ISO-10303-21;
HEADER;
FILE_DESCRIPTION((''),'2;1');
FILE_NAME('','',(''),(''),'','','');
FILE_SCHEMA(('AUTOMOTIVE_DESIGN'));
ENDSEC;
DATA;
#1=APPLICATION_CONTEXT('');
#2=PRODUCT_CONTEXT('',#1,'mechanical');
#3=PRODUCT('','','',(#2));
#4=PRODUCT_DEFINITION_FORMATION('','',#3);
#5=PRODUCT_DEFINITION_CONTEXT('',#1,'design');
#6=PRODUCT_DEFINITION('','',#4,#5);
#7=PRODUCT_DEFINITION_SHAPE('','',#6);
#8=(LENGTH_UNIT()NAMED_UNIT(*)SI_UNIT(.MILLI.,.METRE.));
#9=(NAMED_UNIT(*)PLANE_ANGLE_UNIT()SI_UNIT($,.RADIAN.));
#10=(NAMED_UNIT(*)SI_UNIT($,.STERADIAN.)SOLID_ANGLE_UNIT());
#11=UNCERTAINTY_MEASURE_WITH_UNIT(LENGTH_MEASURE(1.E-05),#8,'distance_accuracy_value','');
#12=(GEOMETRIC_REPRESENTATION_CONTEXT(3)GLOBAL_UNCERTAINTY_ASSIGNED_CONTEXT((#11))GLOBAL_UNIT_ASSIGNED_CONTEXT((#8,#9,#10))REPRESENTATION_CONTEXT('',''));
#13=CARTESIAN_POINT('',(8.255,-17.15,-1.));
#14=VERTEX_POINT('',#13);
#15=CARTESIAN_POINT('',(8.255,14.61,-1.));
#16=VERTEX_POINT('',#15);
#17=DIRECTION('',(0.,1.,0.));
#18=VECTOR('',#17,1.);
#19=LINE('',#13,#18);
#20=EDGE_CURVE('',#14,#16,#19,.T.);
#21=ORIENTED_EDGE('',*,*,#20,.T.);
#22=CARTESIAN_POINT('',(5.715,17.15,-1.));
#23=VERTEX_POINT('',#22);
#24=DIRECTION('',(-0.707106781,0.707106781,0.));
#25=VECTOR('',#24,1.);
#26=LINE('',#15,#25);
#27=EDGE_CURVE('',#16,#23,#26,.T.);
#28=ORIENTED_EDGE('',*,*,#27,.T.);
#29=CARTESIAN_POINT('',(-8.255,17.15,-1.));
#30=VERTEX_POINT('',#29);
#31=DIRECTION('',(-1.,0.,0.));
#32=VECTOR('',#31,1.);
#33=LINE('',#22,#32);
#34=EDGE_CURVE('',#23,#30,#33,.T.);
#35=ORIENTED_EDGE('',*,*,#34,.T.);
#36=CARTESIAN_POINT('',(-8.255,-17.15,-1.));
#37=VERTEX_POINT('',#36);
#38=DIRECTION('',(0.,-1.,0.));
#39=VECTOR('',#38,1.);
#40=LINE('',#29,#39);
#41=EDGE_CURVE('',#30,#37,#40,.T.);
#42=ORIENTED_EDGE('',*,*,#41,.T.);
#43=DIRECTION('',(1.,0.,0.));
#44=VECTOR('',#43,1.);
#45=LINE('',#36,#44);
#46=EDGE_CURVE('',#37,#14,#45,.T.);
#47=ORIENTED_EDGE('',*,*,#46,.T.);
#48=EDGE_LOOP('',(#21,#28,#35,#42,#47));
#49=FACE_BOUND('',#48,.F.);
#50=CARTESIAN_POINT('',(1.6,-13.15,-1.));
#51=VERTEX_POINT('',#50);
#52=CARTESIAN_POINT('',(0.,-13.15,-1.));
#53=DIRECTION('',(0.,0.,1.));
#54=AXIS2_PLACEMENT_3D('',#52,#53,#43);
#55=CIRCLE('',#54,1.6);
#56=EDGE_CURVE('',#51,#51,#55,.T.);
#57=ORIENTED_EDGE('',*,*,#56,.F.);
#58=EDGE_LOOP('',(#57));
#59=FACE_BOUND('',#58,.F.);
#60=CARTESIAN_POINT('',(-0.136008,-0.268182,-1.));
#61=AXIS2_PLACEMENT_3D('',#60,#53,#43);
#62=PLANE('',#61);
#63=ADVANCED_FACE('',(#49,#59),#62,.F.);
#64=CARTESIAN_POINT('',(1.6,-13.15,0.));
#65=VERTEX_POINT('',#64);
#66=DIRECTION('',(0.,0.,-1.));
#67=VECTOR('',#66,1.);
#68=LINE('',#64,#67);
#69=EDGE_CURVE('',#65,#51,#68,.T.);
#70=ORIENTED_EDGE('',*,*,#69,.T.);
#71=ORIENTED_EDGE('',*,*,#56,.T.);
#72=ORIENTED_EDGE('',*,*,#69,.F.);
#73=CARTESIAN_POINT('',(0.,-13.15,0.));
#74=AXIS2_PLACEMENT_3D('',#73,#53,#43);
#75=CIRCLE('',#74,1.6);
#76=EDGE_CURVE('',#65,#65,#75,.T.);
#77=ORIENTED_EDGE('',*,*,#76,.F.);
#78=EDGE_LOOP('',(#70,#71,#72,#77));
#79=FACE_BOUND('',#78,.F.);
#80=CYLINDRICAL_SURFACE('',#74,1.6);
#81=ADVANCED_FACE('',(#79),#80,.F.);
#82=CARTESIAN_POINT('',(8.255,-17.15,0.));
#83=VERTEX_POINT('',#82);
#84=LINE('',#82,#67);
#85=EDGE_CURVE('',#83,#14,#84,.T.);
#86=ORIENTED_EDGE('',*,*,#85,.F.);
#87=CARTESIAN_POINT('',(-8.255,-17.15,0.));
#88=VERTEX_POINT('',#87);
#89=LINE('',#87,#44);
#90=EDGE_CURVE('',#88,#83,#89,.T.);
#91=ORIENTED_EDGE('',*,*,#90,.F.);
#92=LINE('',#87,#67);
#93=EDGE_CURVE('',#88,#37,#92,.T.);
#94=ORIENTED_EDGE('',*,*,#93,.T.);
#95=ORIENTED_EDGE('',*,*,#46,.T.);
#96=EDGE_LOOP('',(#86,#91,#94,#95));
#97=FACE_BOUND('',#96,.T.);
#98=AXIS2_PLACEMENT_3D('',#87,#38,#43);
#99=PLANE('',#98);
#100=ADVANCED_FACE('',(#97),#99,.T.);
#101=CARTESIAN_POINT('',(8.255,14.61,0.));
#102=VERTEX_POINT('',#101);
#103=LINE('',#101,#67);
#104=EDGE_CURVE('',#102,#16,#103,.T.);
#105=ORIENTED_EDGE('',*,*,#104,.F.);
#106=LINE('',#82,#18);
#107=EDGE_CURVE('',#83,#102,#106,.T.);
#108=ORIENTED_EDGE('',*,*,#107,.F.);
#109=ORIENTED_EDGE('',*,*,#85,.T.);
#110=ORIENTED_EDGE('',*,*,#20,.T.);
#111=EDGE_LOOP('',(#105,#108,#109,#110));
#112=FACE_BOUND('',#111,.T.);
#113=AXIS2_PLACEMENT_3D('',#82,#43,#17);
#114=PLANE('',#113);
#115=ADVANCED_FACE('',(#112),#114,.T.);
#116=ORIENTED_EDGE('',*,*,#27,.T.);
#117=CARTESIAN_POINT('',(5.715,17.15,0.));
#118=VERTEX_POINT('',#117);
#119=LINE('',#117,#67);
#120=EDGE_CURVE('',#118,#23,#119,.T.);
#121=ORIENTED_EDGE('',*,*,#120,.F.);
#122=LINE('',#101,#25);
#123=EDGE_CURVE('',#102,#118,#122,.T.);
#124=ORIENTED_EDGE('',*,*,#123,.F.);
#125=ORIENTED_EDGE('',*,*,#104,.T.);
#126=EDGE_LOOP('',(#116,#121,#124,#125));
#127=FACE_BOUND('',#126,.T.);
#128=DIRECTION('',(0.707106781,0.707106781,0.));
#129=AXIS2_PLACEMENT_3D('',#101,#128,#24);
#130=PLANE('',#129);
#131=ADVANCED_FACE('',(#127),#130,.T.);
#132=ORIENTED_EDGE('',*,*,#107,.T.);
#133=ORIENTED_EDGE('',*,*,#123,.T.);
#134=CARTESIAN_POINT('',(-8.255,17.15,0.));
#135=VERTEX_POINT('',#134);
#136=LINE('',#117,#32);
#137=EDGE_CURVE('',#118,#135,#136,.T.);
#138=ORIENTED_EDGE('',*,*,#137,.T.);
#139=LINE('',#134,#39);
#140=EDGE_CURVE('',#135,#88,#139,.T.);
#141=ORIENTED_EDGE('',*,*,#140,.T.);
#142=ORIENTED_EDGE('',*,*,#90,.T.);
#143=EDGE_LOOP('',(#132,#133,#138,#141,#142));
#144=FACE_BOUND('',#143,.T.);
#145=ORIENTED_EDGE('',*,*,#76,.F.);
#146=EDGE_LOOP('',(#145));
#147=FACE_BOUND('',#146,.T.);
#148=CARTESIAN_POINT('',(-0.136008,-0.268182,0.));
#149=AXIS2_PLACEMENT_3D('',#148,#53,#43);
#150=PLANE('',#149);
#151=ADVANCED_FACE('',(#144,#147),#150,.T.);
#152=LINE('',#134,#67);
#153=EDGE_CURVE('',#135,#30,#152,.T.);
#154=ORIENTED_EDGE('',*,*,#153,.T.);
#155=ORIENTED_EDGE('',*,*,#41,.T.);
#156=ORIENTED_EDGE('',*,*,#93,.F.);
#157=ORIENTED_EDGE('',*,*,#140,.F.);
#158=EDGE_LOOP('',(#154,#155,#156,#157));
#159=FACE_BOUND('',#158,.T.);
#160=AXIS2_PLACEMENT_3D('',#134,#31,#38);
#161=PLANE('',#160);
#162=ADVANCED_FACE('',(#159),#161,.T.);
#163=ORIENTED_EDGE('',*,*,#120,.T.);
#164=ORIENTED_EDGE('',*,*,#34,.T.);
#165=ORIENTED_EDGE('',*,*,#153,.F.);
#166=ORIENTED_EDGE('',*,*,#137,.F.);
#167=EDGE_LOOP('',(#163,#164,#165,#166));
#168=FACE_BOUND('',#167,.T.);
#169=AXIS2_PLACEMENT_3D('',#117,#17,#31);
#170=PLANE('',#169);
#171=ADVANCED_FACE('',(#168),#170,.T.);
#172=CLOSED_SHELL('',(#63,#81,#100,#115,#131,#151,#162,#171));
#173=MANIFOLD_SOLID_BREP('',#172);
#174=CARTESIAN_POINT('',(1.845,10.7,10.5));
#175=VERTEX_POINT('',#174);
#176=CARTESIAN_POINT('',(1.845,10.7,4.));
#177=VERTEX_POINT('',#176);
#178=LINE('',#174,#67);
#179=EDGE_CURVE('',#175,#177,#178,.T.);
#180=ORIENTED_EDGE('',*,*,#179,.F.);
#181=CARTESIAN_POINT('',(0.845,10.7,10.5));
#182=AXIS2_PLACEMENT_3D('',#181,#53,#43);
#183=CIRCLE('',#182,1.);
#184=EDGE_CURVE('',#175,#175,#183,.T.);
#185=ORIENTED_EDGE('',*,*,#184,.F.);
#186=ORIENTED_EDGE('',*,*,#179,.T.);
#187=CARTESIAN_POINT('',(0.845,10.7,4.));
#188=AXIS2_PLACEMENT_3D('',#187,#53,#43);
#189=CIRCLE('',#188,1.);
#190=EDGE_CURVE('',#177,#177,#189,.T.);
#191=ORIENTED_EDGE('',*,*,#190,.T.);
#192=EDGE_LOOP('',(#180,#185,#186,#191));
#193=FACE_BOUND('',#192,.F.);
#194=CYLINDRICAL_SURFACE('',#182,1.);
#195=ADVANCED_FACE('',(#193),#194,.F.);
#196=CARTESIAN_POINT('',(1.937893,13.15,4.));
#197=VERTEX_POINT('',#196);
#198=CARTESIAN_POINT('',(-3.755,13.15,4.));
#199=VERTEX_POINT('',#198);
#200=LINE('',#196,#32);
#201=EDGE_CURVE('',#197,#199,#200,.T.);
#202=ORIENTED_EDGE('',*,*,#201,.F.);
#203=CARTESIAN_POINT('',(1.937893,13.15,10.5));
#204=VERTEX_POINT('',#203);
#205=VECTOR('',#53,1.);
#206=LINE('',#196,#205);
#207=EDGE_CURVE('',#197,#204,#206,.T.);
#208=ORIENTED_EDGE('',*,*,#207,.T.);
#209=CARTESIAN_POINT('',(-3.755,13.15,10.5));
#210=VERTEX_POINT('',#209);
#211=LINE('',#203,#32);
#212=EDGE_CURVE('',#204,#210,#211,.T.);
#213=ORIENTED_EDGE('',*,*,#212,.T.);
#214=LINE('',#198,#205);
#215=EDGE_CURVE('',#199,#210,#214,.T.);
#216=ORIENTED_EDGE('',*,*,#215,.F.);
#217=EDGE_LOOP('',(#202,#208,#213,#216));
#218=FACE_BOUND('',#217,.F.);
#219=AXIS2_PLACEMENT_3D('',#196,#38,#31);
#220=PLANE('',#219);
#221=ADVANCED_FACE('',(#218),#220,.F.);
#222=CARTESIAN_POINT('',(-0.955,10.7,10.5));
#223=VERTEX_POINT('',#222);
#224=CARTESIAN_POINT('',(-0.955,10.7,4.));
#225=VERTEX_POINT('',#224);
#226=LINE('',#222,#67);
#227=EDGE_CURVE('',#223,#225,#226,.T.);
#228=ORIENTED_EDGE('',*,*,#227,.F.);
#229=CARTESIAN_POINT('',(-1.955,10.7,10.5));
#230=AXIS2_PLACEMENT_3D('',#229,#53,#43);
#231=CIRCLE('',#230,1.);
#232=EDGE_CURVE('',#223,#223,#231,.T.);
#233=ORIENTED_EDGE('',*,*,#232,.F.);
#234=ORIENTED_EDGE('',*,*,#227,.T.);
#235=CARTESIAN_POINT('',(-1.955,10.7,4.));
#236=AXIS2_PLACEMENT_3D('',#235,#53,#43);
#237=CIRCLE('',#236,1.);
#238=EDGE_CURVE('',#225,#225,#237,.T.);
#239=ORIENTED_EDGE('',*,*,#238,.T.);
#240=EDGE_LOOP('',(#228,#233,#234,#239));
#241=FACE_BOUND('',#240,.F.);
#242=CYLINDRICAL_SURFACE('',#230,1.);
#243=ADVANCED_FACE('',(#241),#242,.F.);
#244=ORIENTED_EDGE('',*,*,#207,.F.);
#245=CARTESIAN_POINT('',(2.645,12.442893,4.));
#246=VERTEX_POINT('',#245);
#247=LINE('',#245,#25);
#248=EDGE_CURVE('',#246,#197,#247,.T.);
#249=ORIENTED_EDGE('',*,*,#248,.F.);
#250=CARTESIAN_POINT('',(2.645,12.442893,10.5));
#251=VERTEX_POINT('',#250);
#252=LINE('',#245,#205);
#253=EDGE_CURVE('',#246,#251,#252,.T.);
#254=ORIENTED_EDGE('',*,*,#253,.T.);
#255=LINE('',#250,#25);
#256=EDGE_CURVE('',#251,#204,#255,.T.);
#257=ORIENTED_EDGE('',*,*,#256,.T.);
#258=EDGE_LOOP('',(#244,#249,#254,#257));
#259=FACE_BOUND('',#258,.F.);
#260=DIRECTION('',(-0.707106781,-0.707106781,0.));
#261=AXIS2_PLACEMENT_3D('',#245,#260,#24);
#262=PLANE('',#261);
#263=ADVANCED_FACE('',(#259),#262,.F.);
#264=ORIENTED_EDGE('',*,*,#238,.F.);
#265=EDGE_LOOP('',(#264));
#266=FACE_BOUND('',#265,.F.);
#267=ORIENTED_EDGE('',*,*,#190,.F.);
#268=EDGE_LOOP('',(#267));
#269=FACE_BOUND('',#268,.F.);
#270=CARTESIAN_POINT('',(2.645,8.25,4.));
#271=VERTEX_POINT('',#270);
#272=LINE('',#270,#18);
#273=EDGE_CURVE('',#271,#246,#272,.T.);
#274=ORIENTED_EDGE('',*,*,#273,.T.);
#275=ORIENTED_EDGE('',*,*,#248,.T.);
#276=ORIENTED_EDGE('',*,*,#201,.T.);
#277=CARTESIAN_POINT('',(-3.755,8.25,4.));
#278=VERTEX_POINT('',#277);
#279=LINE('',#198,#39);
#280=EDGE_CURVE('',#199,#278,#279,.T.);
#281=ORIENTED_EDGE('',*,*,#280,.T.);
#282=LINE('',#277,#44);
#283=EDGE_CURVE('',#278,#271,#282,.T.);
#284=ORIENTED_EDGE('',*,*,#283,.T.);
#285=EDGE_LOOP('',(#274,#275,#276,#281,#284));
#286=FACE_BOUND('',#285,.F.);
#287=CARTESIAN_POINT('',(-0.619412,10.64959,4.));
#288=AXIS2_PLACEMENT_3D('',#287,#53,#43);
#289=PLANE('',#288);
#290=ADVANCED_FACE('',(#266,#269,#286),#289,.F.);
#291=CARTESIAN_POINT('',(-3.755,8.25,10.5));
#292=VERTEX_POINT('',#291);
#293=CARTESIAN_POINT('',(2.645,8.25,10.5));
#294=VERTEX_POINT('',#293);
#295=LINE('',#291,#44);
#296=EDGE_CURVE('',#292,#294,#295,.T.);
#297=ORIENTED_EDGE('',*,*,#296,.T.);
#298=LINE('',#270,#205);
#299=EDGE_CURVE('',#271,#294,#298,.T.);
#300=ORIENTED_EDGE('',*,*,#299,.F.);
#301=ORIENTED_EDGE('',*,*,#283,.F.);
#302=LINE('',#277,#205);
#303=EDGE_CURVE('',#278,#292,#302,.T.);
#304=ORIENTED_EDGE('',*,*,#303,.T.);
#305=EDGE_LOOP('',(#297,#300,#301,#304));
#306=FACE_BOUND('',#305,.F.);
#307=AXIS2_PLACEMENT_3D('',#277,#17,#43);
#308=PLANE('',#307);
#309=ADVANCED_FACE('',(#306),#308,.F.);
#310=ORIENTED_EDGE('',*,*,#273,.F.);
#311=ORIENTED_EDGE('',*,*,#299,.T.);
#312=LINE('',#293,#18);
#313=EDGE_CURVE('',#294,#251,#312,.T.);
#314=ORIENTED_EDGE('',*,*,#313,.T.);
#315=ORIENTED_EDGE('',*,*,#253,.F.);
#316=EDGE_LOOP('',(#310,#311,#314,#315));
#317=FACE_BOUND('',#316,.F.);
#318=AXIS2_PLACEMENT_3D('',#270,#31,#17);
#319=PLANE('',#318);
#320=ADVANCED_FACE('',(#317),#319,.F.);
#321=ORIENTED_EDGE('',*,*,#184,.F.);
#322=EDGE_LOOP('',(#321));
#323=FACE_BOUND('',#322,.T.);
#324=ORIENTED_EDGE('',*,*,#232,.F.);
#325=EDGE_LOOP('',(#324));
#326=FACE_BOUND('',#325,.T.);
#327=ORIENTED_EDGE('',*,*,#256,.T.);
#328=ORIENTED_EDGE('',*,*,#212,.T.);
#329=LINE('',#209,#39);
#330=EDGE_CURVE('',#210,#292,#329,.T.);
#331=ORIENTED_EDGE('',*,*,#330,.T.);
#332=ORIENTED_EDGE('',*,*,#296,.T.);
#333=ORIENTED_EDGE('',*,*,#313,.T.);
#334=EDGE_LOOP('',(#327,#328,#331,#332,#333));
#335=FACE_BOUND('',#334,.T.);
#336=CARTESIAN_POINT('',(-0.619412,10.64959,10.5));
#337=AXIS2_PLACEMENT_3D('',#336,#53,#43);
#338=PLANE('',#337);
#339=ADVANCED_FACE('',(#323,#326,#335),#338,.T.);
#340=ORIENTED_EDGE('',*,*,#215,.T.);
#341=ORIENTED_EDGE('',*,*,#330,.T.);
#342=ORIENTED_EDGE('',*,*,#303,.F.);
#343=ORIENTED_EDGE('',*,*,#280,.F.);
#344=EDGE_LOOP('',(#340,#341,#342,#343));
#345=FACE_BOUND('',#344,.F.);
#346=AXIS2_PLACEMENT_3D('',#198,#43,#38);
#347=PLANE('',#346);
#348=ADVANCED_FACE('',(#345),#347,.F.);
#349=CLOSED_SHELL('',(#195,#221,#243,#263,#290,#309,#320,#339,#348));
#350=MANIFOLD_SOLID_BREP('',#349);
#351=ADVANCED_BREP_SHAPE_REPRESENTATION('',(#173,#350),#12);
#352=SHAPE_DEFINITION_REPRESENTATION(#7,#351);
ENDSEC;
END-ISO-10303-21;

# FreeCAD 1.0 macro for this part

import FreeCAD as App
import Part
import Sketcher
Q = App.Units.Quantity

doc = App.newDocument("Part")
body = doc.addObject("PartDesign::Body", "Body")

sketch1 = doc.addObject("Sketcher::SketchObject", "Sketch")
body.addObject(sketch1)
sketch1.AttachmentSupport = (doc.XY_Plane, [""])
sketch1.MapMode = "FlatFace"
sketch1.addGeometry([
    Part.LineSegment(App.Vector(5.715, 17.15, 0), App.Vector(-8.255, 17.15, 0)),
    Part.LineSegment(App.Vector(-8.255, 17.15, 0), App.Vector(-8.255, -17.15, 0)),
    Part.LineSegment(App.Vector(-8.255, -17.15, 0), App.Vector(8.255, -17.15, 0)),
    Part.LineSegment(App.Vector(8.255, -17.15, 0), App.Vector(8.255, 14.61, 0)),
    Part.LineSegment(App.Vector(8.255, 14.61, 0), App.Vector(5.715, 17.15, 0)),
], False)
sketch1.addConstraint([
    Sketcher.Constraint("Coincident", 0, 2, 1, 1),
    Sketcher.Constraint("Coincident", 1, 2, 2, 1),
    Sketcher.Constraint("Coincident", 2, 2, 3, 1),
    Sketcher.Constraint("Coincident", 3, 2, 4, 1),
    Sketcher.Constraint("Coincident", 4, 2, 0, 1),
    Sketcher.Constraint("Horizontal", 0),
    Sketcher.Constraint("Vertical", 1),
    Sketcher.Constraint("Horizontal", 2),
    Sketcher.Constraint("Vertical", 3),
    Sketcher.Constraint("Symmetric", 0, 2, 2, 2, -1, 1),
    Sketcher.Constraint("Angle", 4, Q("135 deg")),
    Sketcher.Constraint("DistanceY", 1, 2, 1, 1, Q("34.3 mm")),
    Sketcher.Constraint("DistanceX", 0, 2, 0, 1, Q("13.97 mm")),
    Sketcher.Constraint("DistanceX", 2, 1, 2, 2, Q("16.51 mm")),
])
pad1 = doc.addObject("PartDesign::Pad", "Pad")
body.addObject(pad1)
pad1.Profile = sketch1
pad1.Length = 1
pad1.Reversed = True

sketch2 = doc.addObject("Sketcher::SketchObject", "Sketch001")
body.addObject(sketch2)
sketch2.AttachmentSupport = (doc.XY_Plane, [""])
sketch2.MapMode = "FlatFace"
sketch2.addGeometry(Part.Circle(App.Vector(0, -13.15, 0), App.Vector(0, 0, 1), 1.6), False)
sketch2.addConstraint([
    Sketcher.Constraint("PointOnObject", 0, 3, -2),
    Sketcher.Constraint("Diameter", 0, Q("3.2 mm")),
    Sketcher.Constraint("DistanceY", 0, 3, -1, 1, Q("13.15 mm")),
])
pocket1 = doc.addObject("PartDesign::Pocket", "Pocket")
body.addObject(pocket1)
pocket1.Profile = sketch2
pocket1.Type = "ThroughAll"
body2 = doc.addObject("PartDesign::Body", "Body001")

sketch3 = doc.addObject("Sketcher::SketchObject", "Sketch002")
body2.addObject(sketch3)
sketch3.AttachmentSupport = (doc.getObject("XY_Plane001"), [""])
sketch3.MapMode = "FlatFace"
sketch3.AttachmentOffset = App.Placement(App.Vector(0, 0, 4), App.Rotation())
sketch3.addGeometry([
    Part.LineSegment(App.Vector(1.937893, 13.15, 0), App.Vector(-3.755, 13.15, 0)),
    Part.LineSegment(App.Vector(-3.755, 13.15, 0), App.Vector(-3.755, 8.25, 0)),
    Part.LineSegment(App.Vector(-3.755, 8.25, 0), App.Vector(2.645, 8.25, 0)),
    Part.LineSegment(App.Vector(2.645, 8.25, 0), App.Vector(2.645, 12.442893, 0)),
    Part.LineSegment(App.Vector(2.645, 12.442893, 0), App.Vector(1.937893, 13.15, 0)),
], False)
sketch3.addConstraint([
    Sketcher.Constraint("Coincident", 0, 2, 1, 1),
    Sketcher.Constraint("Coincident", 1, 2, 2, 1),
    Sketcher.Constraint("Coincident", 2, 2, 3, 1),
    Sketcher.Constraint("Coincident", 3, 2, 4, 1),
    Sketcher.Constraint("Coincident", 4, 2, 0, 1),
    Sketcher.Constraint("Horizontal", 0),
    Sketcher.Constraint("Vertical", 1),
    Sketcher.Constraint("Horizontal", 2),
    Sketcher.Constraint("Vertical", 3),
    Sketcher.Constraint("Angle", 4, Q("135 deg")),
    Sketcher.Constraint("Distance", 4, Q("1 mm")),
    Sketcher.Constraint("DistanceX", 2, 1, 2, 2, Q("6.4 mm")),
    Sketcher.Constraint("DistanceY", 1, 2, 1, 1, Q("4.9 mm")),
    Sketcher.Constraint("DistanceY", -1, 1, 0, 2, Q("13.15 mm")),
    Sketcher.Constraint("DistanceX", 0, 2, -1, 1, Q("3.755 mm")),
])
pad2 = doc.addObject("PartDesign::Pad", "Pad001")
body2.addObject(pad2)
pad2.Profile = sketch3
pad2.Length = 6.5

sketch4 = doc.addObject("Sketcher::SketchObject", "Sketch003")
body2.addObject(sketch4)
sketch4.AttachmentSupport = (doc.getObject("XY_Plane001"), [""])
sketch4.MapMode = "FlatFace"
sketch4.AttachmentOffset = App.Placement(App.Vector(0, 0, 10.5), App.Rotation())
sketch4.addGeometry([
    Part.Circle(App.Vector(-1.955, 10.7, 0), App.Vector(0, 0, 1), 1),
    Part.Circle(App.Vector(0.845, 10.7, 0), App.Vector(0, 0, 1), 1),
], False)
sketch4.addConstraint([
    Sketcher.Constraint("Equal", 0, 1),
    Sketcher.Constraint("Horizontal", 0, 3, 1, 3),
    Sketcher.Constraint("Diameter", 0, Q("2 mm")),
    Sketcher.Constraint("DistanceY", -1, 1, 0, 3, Q("10.7 mm")),
    Sketcher.Constraint("DistanceX", 0, 3, 1, 3, Q("2.8 mm")),
    Sketcher.Constraint("DistanceX", 0, 3, -1, 1, Q("1.955 mm")),
])
pocket2 = doc.addObject("PartDesign::Pocket", "Pocket001")
body2.addObject(pocket2)
pocket2.Profile = sketch4
pocket2.Type = "ThroughAll"

doc.recompute()
